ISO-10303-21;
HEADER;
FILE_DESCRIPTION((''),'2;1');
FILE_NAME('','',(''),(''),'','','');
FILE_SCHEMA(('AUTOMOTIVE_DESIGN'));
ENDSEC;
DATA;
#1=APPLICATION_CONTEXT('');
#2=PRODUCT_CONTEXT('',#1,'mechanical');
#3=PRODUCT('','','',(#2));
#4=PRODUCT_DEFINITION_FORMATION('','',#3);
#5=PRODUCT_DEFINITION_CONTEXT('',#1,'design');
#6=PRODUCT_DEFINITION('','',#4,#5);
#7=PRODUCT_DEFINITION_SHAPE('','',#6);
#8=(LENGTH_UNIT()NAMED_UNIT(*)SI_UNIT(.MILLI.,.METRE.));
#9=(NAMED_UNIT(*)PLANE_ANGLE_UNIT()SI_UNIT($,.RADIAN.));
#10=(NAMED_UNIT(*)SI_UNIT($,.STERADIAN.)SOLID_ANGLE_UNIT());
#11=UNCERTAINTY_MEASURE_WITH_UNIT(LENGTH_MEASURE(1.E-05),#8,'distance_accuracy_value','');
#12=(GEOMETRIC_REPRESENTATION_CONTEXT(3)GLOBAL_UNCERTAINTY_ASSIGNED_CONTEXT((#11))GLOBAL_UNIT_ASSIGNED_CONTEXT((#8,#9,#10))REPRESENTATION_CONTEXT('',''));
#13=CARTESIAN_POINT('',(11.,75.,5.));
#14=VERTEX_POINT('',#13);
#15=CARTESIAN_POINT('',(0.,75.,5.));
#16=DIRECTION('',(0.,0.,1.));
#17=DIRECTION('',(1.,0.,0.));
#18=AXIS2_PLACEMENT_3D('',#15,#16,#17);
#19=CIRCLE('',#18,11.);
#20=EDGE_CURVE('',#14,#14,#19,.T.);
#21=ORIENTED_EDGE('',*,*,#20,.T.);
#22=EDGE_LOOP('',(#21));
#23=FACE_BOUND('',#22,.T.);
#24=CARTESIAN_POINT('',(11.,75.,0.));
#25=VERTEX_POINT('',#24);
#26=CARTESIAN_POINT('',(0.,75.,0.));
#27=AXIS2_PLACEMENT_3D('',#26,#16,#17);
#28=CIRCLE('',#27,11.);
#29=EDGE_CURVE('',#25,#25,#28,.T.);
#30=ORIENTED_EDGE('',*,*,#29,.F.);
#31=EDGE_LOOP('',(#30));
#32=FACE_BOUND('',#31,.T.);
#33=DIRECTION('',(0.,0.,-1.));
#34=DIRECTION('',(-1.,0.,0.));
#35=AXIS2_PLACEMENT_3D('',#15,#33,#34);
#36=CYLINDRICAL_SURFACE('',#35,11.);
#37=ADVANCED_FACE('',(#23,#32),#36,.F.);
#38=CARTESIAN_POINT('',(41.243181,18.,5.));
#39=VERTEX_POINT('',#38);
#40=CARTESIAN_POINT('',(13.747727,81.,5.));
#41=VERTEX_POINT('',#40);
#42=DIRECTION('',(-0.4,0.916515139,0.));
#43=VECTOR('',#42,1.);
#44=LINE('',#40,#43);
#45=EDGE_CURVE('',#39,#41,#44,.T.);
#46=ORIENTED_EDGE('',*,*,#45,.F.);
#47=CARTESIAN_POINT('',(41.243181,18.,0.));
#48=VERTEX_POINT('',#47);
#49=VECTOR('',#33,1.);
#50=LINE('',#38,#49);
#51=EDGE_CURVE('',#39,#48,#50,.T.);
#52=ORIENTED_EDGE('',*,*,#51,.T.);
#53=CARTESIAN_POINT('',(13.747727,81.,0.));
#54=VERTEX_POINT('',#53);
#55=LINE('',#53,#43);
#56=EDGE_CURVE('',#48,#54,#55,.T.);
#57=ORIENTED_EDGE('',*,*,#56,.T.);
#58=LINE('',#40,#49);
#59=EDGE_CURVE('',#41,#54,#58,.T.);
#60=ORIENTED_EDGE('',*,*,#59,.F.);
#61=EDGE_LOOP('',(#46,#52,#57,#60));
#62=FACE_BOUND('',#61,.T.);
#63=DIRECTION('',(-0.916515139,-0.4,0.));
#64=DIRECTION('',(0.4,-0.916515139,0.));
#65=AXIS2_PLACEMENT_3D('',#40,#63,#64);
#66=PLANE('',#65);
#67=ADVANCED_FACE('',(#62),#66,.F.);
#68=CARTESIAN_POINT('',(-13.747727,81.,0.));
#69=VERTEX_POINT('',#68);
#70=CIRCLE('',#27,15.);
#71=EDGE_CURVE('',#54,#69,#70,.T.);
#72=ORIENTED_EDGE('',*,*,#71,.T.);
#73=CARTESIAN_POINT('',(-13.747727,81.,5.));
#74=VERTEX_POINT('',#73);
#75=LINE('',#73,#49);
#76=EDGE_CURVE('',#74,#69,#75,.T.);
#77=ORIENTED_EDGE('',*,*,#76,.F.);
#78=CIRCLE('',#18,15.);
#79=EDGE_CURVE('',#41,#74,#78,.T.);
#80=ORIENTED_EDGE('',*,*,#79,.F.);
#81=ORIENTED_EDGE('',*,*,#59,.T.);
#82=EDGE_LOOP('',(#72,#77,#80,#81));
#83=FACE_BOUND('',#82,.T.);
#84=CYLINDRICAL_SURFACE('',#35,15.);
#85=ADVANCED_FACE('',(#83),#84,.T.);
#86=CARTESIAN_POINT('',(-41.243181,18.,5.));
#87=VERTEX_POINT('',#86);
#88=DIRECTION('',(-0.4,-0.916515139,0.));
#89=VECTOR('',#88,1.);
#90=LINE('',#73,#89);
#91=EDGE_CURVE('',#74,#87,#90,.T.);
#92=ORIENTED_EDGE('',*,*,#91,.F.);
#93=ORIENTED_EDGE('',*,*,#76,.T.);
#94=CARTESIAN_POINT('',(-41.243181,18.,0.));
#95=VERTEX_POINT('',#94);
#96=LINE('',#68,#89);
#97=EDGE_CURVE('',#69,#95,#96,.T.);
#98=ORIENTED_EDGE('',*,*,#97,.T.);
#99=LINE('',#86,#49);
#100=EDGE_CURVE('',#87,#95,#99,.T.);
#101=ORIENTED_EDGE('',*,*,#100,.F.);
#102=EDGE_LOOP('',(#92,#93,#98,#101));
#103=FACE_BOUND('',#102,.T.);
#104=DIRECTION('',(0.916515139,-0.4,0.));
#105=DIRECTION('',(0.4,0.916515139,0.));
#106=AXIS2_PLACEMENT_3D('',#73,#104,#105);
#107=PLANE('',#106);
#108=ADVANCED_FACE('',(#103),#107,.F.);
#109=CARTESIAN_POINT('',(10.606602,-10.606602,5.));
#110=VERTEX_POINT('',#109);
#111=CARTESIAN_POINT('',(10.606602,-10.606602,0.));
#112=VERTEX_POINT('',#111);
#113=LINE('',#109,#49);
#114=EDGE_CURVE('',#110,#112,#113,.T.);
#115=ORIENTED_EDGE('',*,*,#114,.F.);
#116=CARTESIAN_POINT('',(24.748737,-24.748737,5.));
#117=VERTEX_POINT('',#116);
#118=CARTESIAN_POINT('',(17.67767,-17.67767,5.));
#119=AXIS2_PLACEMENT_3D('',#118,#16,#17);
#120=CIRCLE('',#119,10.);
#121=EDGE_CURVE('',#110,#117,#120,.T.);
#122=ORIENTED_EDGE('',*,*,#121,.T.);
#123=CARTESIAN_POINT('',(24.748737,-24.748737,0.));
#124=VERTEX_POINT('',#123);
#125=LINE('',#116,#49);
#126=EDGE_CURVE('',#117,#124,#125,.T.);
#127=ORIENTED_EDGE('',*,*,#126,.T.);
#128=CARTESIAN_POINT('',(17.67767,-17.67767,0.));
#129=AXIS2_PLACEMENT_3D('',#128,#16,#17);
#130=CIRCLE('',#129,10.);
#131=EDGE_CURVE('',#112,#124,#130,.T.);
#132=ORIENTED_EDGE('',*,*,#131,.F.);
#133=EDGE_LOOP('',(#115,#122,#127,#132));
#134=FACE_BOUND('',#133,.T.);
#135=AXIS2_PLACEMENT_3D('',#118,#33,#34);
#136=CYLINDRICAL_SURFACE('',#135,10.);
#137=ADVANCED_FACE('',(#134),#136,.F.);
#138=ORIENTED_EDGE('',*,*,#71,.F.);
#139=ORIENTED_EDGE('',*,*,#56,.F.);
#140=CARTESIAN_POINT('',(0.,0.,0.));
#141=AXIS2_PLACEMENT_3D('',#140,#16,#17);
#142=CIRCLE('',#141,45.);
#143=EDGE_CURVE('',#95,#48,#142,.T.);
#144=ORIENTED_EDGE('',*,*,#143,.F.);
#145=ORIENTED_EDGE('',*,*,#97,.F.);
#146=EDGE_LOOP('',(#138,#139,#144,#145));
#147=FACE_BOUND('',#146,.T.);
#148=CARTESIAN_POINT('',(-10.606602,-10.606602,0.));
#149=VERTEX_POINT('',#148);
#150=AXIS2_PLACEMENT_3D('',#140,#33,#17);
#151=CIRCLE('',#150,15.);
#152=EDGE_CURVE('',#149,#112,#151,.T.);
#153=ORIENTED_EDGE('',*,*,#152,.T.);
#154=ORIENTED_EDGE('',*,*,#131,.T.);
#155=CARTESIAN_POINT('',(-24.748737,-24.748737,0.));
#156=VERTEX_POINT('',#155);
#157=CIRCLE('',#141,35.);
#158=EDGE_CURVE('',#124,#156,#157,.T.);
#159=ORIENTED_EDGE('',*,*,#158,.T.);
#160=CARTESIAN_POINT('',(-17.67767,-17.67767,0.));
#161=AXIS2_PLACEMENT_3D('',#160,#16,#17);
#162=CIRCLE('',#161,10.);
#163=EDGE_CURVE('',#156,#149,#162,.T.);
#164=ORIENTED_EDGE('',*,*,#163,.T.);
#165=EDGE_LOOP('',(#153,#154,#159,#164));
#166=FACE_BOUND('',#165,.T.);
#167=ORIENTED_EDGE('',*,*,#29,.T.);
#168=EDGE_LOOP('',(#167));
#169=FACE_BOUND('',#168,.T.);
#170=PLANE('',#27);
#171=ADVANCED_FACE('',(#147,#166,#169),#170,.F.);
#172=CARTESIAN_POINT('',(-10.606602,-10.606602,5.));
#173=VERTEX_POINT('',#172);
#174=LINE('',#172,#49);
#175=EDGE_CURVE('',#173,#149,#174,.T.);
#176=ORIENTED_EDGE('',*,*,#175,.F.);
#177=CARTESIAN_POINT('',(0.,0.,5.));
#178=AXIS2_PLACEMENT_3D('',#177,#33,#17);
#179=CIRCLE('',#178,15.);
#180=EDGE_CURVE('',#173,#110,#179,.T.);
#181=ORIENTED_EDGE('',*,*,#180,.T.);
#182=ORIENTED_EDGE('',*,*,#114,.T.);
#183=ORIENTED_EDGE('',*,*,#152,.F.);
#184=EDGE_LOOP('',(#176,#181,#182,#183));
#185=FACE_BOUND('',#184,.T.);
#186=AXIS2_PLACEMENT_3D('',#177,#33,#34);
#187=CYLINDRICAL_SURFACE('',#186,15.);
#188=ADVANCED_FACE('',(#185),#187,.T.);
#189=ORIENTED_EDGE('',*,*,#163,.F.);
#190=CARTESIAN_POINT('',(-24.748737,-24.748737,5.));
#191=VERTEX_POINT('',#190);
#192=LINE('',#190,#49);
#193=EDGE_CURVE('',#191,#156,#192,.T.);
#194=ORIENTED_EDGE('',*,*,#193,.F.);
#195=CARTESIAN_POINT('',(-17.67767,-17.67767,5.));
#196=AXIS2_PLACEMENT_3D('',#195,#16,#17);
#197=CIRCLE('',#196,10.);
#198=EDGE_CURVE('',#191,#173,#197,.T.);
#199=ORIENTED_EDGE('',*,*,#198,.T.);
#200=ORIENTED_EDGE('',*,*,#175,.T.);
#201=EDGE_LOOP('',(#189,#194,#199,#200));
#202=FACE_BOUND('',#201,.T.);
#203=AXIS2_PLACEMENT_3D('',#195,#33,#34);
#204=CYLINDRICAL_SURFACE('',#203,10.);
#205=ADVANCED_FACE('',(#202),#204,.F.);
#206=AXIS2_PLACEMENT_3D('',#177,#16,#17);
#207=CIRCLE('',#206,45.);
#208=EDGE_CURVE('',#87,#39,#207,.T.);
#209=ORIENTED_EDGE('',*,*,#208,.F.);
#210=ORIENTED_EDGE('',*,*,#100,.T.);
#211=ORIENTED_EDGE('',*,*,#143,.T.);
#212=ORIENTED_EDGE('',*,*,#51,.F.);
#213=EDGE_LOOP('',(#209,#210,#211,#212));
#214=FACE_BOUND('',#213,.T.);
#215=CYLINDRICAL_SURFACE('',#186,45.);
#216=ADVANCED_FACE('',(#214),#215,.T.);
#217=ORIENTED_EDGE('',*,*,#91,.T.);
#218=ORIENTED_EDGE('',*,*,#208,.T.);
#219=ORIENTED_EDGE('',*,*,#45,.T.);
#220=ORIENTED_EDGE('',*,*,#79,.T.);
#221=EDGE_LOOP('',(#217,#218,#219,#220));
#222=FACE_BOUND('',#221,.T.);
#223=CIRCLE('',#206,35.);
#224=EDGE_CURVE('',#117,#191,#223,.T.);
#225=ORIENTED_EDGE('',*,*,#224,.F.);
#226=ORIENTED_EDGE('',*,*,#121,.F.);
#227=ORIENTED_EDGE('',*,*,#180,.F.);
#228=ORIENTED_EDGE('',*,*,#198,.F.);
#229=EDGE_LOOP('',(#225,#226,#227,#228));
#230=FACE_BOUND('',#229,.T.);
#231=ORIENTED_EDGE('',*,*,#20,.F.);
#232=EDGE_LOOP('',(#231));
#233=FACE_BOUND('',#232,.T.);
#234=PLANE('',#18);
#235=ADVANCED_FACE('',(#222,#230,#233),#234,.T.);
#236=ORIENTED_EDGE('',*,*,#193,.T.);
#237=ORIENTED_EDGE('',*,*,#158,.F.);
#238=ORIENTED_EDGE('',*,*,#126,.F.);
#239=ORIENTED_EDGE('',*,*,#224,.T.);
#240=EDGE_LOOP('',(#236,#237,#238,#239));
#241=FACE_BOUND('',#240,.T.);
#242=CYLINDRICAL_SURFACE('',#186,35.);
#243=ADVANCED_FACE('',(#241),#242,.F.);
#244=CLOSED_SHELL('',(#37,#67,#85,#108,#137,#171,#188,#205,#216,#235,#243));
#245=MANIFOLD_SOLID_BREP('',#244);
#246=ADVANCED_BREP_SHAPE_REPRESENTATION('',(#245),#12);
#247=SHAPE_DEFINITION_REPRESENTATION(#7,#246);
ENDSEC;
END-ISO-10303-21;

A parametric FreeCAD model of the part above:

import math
import FreeCAD as App
import Part
import Sketcher

V = App.Vector

doc = App.newDocument("Part")
body = doc.addObject("PartDesign::Body", "Body")

# Sketch on XY plane
sketch1 = body.newObject("Sketcher::SketchObject", "Sketch")
sketch1.AttachmentSupport = (doc.getObject("XY_Plane"), [""])
sketch1.MapMode = "FlatFace"
sketch1.addGeometry(Part.LineSegment(V(-14, 81, 0), V(-41, 18, 0)), False)
sketch1.addGeometry(Part.ArcOfCircle(Part.Circle(V(0, 0, 0), V(0, 0, 1), 45), math.radians(156), math.radians(384)), False)
sketch1.addGeometry(Part.LineSegment(V(41, 18, 0), V(14, 81, 0)), False)
sketch1.addGeometry(Part.ArcOfCircle(Part.Circle(V(0, 75, 0), V(0, 0, 1), 15), math.radians(24), math.radians(156)), False)
sketch1.addGeometry(Part.ArcOfCircle(Part.Circle(V(0, 0, 0), V(0, 0, 1), 35), math.radians(-45), math.radians(225)), False)
sketch1.addGeometry(Part.ArcOfCircle(Part.Circle(V(18, -18, 0), V(0, 0, 1), 10), math.radians(135), math.radians(315)), False)
sketch1.addGeometry(Part.ArcOfCircle(Part.Circle(V(0, 0, 0), V(0, 0, 1), 15), math.radians(-45), math.radians(225)), False)
sketch1.addGeometry(Part.ArcOfCircle(Part.Circle(V(-18, -18, 0), V(0, 0, 1), 10), math.radians(-135), math.radians(45)), False)
sketch1.addGeometry(Part.Circle(V(0, 75, 0), V(0, 0, 1), 11), False)
sketch1.addConstraint(Sketcher.Constraint("Tangent", 0, 2, 1, 1))
sketch1.addConstraint(Sketcher.Constraint("Tangent", 1, 2, 2, 1))
sketch1.addConstraint(Sketcher.Constraint("Tangent", 2, 2, 3, 1))
sketch1.addConstraint(Sketcher.Constraint("Tangent", 3, 2, 0, 1))
sketch1.addConstraint(Sketcher.Constraint("Tangent", 4, 1, 5, 2))
sketch1.addConstraint(Sketcher.Constraint("Tangent", 5, 1, 6, 1))
sketch1.addConstraint(Sketcher.Constraint("Tangent", 6, 2, 7, 2))
sketch1.addConstraint(Sketcher.Constraint("Tangent", 7, 1, 4, 2))
sketch1.addConstraint(Sketcher.Constraint("Coincident", 1, 3, -1, 1))
sketch1.addConstraint(Sketcher.Constraint("Coincident", 4, 3, -1, 1))
sketch1.addConstraint(Sketcher.Constraint("Coincident", 6, 3, -1, 1))
sketch1.addConstraint(Sketcher.Constraint("Coincident", 8, 3, 3, 3))
sketch1.addConstraint(Sketcher.Constraint("Equal", 3, 6))
sketch1.addConstraint(Sketcher.Constraint("PointOnObject", 3, 3, -2))
sketch1.addConstraint(Sketcher.Constraint("Horizontal", 5, 3, 7, 3))
sketch1.addConstraint(Sketcher.Constraint("Diameter", 8, 22.0))
sketch1.addConstraint(Sketcher.Constraint("Radius", 1, 45.0))
sketch1.addConstraint(Sketcher.Constraint("Radius", 3, 15.0))
sketch1.addConstraint(Sketcher.Constraint("Radius", 4, 35.0))
sketch1.addConstraint(Sketcher.Constraint("DistanceY", -1, 1, 3, 3, 75.0))
sketch1.addConstraint(Sketcher.Constraint("DistanceX", -1, 1, 5, 1, 10.606602))
pad1 = body.newObject("PartDesign::Pad", "Pad")
pad1.Profile = sketch1
pad1.Length = 5

doc.recompute()
